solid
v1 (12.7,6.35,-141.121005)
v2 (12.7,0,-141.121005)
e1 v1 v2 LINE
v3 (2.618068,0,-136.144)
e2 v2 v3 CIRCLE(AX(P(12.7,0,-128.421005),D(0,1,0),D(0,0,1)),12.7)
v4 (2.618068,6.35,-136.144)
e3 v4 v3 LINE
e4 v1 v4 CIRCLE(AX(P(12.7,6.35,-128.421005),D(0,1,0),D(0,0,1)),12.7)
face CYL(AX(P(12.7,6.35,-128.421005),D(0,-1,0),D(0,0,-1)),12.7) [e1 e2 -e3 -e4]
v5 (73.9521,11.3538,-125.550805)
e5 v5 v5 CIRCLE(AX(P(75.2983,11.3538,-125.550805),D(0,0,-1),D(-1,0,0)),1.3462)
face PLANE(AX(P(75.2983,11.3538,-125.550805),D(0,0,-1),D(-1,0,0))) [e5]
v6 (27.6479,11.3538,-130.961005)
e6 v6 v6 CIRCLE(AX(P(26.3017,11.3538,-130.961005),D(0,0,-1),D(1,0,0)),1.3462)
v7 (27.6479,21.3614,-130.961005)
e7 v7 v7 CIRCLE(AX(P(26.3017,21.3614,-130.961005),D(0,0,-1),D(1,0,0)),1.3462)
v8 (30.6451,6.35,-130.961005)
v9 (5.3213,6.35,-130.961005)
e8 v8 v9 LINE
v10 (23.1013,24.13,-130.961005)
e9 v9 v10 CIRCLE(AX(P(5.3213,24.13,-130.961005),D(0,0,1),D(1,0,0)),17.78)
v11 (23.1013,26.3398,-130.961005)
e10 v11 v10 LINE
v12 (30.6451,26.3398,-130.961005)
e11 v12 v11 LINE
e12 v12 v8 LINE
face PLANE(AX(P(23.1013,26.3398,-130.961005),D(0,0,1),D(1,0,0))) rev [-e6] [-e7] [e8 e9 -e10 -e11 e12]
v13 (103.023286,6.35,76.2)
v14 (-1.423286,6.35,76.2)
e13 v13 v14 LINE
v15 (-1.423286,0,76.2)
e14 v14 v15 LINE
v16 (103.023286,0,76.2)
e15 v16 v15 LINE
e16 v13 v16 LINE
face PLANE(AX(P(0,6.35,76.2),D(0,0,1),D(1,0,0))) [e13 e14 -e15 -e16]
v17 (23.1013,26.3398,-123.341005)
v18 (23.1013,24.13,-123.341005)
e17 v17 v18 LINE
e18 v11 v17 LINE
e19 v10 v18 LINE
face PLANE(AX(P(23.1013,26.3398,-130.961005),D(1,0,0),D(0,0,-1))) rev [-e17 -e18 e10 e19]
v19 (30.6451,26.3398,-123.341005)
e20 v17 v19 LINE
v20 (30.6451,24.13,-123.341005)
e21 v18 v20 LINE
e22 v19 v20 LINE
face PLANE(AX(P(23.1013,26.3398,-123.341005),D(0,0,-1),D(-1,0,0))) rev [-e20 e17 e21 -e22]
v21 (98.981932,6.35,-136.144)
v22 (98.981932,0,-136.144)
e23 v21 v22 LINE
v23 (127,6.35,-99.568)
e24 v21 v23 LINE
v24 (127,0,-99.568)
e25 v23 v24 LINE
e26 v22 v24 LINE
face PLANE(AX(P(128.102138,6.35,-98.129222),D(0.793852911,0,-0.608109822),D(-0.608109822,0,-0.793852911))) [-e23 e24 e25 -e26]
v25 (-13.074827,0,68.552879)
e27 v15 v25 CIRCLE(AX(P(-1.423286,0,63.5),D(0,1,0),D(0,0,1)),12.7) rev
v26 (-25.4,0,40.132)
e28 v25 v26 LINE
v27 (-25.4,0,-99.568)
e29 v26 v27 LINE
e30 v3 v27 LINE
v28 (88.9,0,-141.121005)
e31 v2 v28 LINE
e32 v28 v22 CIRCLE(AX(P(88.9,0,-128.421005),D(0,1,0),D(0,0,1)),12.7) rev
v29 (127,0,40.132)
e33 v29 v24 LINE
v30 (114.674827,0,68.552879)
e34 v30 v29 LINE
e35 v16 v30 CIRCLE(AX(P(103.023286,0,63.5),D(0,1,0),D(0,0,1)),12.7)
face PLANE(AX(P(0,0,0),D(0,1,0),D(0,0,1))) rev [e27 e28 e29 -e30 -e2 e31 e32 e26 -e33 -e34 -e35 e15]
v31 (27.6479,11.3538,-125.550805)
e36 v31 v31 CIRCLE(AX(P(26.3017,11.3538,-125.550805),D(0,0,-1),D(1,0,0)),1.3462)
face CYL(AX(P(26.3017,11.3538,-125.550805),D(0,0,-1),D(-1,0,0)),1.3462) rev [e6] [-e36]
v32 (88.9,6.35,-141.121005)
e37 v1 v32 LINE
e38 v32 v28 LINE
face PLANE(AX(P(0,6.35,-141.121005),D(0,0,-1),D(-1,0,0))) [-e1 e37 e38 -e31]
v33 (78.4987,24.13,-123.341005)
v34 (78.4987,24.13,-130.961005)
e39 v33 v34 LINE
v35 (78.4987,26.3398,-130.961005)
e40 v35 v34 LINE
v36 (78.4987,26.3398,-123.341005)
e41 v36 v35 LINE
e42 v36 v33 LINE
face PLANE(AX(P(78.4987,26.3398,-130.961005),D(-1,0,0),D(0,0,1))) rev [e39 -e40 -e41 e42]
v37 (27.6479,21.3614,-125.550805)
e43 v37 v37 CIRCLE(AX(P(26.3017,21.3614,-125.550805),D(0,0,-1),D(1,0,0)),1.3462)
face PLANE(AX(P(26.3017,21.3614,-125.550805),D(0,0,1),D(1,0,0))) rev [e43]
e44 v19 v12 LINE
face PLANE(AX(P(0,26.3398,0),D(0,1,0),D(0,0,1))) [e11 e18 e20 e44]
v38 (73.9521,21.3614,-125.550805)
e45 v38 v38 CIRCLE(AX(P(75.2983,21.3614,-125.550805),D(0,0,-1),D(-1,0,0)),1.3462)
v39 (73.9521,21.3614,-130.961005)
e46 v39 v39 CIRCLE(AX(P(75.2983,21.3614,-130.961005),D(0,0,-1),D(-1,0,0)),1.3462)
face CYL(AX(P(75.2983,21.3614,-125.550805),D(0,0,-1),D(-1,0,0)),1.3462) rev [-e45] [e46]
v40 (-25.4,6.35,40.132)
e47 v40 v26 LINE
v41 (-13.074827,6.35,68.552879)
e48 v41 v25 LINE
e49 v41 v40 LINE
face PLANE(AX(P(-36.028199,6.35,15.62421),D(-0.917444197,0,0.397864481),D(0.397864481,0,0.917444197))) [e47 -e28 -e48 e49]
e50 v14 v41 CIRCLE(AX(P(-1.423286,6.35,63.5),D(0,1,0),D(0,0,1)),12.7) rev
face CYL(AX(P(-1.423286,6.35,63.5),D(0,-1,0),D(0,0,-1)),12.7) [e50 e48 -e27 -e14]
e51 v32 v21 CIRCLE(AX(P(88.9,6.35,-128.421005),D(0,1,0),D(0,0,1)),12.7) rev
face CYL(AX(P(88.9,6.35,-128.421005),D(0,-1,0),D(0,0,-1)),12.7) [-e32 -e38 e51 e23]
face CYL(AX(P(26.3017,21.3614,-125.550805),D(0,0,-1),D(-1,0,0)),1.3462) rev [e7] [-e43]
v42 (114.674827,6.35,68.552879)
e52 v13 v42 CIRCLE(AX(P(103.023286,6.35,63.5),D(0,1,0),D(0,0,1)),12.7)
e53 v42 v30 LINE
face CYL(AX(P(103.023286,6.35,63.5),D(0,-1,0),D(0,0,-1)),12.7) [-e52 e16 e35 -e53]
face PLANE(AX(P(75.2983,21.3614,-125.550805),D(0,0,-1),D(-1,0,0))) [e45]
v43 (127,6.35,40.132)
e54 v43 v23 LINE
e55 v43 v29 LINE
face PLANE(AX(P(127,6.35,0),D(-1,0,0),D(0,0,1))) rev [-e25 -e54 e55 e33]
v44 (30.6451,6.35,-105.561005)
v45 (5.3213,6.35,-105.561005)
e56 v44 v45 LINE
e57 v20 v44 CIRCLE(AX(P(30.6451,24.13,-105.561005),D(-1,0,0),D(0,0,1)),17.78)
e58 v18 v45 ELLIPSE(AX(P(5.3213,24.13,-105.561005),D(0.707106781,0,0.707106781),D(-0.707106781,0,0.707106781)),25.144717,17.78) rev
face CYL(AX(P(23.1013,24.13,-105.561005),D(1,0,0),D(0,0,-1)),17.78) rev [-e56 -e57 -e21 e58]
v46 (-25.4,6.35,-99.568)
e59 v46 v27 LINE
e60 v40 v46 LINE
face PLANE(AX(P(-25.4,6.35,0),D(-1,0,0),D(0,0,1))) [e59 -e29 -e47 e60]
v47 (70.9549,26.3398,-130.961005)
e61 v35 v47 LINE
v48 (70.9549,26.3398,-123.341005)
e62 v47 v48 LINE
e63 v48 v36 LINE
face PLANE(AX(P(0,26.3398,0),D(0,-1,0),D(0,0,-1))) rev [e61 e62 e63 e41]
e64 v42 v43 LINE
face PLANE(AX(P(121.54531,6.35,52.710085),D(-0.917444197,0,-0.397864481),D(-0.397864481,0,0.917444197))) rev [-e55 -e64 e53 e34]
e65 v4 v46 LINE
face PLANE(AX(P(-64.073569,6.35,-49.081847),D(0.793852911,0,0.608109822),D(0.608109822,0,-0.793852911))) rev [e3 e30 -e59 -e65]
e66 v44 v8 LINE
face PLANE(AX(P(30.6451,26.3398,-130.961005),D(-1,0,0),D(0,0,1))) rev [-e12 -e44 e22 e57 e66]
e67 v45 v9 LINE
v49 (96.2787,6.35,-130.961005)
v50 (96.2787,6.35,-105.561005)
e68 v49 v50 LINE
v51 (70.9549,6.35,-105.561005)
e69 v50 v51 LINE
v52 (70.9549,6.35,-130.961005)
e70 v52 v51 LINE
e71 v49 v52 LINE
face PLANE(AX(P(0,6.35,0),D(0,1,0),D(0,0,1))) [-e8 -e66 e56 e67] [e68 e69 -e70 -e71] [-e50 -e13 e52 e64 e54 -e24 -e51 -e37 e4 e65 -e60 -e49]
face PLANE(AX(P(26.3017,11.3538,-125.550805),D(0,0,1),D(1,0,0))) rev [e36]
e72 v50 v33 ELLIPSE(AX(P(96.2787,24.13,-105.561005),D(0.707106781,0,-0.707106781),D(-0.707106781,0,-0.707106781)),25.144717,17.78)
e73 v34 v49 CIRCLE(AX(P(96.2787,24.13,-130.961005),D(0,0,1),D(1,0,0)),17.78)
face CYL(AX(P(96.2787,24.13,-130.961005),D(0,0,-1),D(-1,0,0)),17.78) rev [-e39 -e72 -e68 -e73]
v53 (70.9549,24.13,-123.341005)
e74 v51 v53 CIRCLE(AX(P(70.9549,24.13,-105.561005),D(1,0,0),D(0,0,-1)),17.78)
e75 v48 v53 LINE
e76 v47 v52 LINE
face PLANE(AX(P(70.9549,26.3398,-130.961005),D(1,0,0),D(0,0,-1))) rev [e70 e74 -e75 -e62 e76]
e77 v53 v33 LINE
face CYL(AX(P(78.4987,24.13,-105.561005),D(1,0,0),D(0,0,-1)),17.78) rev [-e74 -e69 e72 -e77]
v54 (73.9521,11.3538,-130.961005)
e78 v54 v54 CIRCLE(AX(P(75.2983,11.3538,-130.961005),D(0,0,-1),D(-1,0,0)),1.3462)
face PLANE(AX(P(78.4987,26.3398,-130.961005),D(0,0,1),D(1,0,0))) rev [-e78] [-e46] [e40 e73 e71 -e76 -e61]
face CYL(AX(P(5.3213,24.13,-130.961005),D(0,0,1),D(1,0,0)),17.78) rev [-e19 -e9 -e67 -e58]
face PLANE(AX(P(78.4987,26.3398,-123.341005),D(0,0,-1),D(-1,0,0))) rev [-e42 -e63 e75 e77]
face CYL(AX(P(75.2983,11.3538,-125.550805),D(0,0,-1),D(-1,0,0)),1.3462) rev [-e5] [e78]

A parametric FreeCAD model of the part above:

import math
import FreeCAD as App
import Part
import Sketcher
from FreeCAD import Vector
Q = App.Units.Quantity


def edges_at(feature, points):
    """Names of the edges that pass closest to the given points."""
    edges = feature.Shape.Edges
    near = lambda p: min(range(len(edges)), key=lambda i: edges[i].distToShape(Part.Vertex(*p))[0])
    return sorted({f"Edge{near(p) + 1}" for p in points})


def add_polygon(sketch, points):
    """Adds a closed chain of lines whose ends are joined by coincident constraints."""
    first, n = sketch.GeometryCount, len(points)
    for a, b in zip(points, points[1:] + points[:1]):
        sketch.addGeometry(Part.LineSegment(App.Vector(*a, 0), App.Vector(*b, 0)), False)
    for i in range(n):
        sketch.addConstraint(Sketcher.Constraint("Coincident", first + i, 2, first + (i + 1) % n, 1))

doc = App.newDocument("Part")
body = doc.addObject("PartDesign::Body", "Body")

sketch1 = body.newObject("Sketcher::SketchObject", "Sketch")
sketch1.AttachmentSupport = (doc.getObject("XZ_Plane"), [""])
sketch1.MapMode = "FlatFace"
sketch1.addGeometry(Part.LineSegment(Vector(89, -141, 0), Vector(13, -141, 0)), False)
sketch1.addGeometry(Part.ArcOfCircle(Part.Circle(Vector(13, -128, 0), Vector(0, 0, 1), 13), math.radians(-143), math.radians(-90)), False)
sketch1.addGeometry(Part.LineSegment(Vector(3, -136, 0), Vector(-25, -100, 0)), False)
sketch1.addGeometry(Part.LineSegment(Vector(-25, -100, 0), Vector(-25, 40, 0)), False)
sketch1.addGeometry(Part.LineSegment(Vector(-25, 40, 0), Vector(-13, 69, 0)), False)
sketch1.addGeometry(Part.ArcOfCircle(Part.Circle(Vector(-1, 64, 0), Vector(0, 0, 1), 13), math.radians(90), math.radians(157)), False)
sketch1.addGeometry(Part.LineSegment(Vector(-1, 76, 0), Vector(103, 76, 0)), False)
sketch1.addGeometry(Part.ArcOfCircle(Part.Circle(Vector(103, 64, 0), Vector(0, 0, 1), 13), math.radians(23), math.radians(90)), False)
sketch1.addGeometry(Part.LineSegment(Vector(115, 69, 0), Vector(127, 40, 0)), False)
sketch1.addGeometry(Part.LineSegment(Vector(127, 40, 0), Vector(127, -100, 0)), False)
sketch1.addGeometry(Part.LineSegment(Vector(127, -100, 0), Vector(99, -136, 0)), False)
sketch1.addGeometry(Part.ArcOfCircle(Part.Circle(Vector(89, -128, 0), Vector(0, 0, 1), 13), math.radians(-90), math.radians(-37)), False)
sketch1.addConstraint(Sketcher.Constraint("Tangent", 0, 2, 1, 2))
sketch1.addConstraint(Sketcher.Constraint("Tangent", 1, 1, 2, 1))
sketch1.addConstraint(Sketcher.Constraint("Coincident", 2, 2, 3, 1))
sketch1.addConstraint(Sketcher.Constraint("Coincident", 3, 2, 4, 1))
sketch1.addConstraint(Sketcher.Constraint("Tangent", 4, 2, 5, 2))
sketch1.addConstraint(Sketcher.Constraint("Tangent", 5, 1, 6, 1))
sketch1.addConstraint(Sketcher.Constraint("Tangent", 6, 2, 7, 2))
sketch1.addConstraint(Sketcher.Constraint("Tangent", 7, 1, 8, 1))
sketch1.addConstraint(Sketcher.Constraint("Coincident", 8, 2, 9, 1))
sketch1.addConstraint(Sketcher.Constraint("Coincident", 9, 2, 10, 1))
sketch1.addConstraint(Sketcher.Constraint("Tangent", 10, 2, 11, 2))
sketch1.addConstraint(Sketcher.Constraint("Tangent", 11, 1, 0, 1))
sketch1.addConstraint(Sketcher.Constraint("Horizontal", 0))
sketch1.addConstraint(Sketcher.Constraint("Vertical", 3))
sketch1.addConstraint(Sketcher.Constraint("Horizontal", 6))
sketch1.addConstraint(Sketcher.Constraint("Vertical", 9))
sketch1.addConstraint(Sketcher.Constraint("Equal", 1, 5))
sketch1.addConstraint(Sketcher.Constraint("Equal", 5, 7))
sketch1.addConstraint(Sketcher.Constraint("Equal", 7, 11))
sketch1.addConstraint(Sketcher.Constraint("Horizontal", 4, 2, 7, 1))
sketch1.addConstraint(Sketcher.Constraint("Horizontal", 3, 2, 8, 2))
sketch1.addConstraint(Sketcher.Constraint("Horizontal", 2, 2, 9, 2))
sketch1.addConstraint(Sketcher.Constraint("Horizontal", 1, 1, 10, 2))
sketch1.addConstraint(Sketcher.Constraint("Radius", 1, Q("0.5 in")))
sketch1.addConstraint(Sketcher.Constraint("DistanceX", 0, 2, 0, 1, Q("3 in")))
sketch1.addConstraint(Sketcher.Constraint("DistanceY", 3, 1, 3, 2, Q("5.5 in")))
sketch1.addConstraint(Sketcher.Constraint("DistanceX", 2, 2, -1, 1, Q("1 in")))
sketch1.addConstraint(Sketcher.Constraint("DistanceY", -1, 1, 5, 1, Q("3 in")))
sketch1.addConstraint(Sketcher.Constraint("DistanceX", -1, 1, 8, 2, Q("5 in")))
sketch1.addConstraint(Sketcher.Constraint("DistanceY", 1, 1, -1, 1, Q("5.36 in")))
sketch1.addConstraint(Sketcher.Constraint("DistanceY", 2, 2, -1, 1, Q("3.92 in")))
sketch1.addConstraint(Sketcher.Constraint("DistanceX", 6, 1, 6, 2, Q("104.446572 mm")))
pad1 = body.newObject("PartDesign::Pad", "Pad")
pad1.Profile = sketch1
pad1.Length = Q("0.25 in")
pad1.Reversed = True

sketch2 = body.newObject("Sketcher::SketchObject", "Sketch001")
sketch2.AttachmentSupport = (doc.getObject("XZ_Plane"), [""])
sketch2.MapMode = "FlatFace"
sketch2.AttachmentOffset = App.Placement(Vector(0, 0, -0.25 * 25.4), App.Rotation())
add_polygon(sketch2, [(71, -131), (71, -123), (78, -123), (78, -131)])
add_polygon(sketch2, [(23, -131), (23, -123), (31, -123), (31, -131)])
sketch2.addConstraint(Sketcher.Constraint("Vertical", 0))
sketch2.addConstraint(Sketcher.Constraint("Horizontal", 1))
sketch2.addConstraint(Sketcher.Constraint("Vertical", 2))
sketch2.addConstraint(Sketcher.Constraint("Horizontal", 3))
sketch2.addConstraint(Sketcher.Constraint("Vertical", 4))
sketch2.addConstraint(Sketcher.Constraint("Horizontal", 5))
sketch2.addConstraint(Sketcher.Constraint("Vertical", 6))
sketch2.addConstraint(Sketcher.Constraint("Horizontal", 7))
sketch2.addConstraint(Sketcher.Constraint("Horizontal", 1, 2, 4, 2))
sketch2.addConstraint(Sketcher.Constraint("Horizontal", 3, 2, 6, 2))
sketch2.addConstraint(Sketcher.Constraint("Equal", 3, 5))
sketch2.addConstraint(Sketcher.Constraint("DistanceY", 0, 1, 0, 2, Q("0.3 in")))
sketch2.addConstraint(Sketcher.Constraint("DistanceX", 1, 1, 1, 2, Q("0.297 in")))
sketch2.addConstraint(Sketcher.Constraint("DistanceX", 4, 2, 0, 2, Q("1.884 in")))
sketch2.addConstraint(Sketcher.Constraint("DistanceX", -1, 1, 0, 2, Q("2.7935 in")))
sketch2.addConstraint(Sketcher.Constraint("DistanceY", 0, 2, -1, 1, Q("123.341005 mm")))
pad2 = body.newObject("PartDesign::Pad", "Pad001")
pad2.Profile = sketch2
pad2.Length = Q("0.787 in")
pad2.Reversed = True
doc.recompute()

fillet = body.newObject("PartDesign::Fillet", "Fillet")
fillet.Base = (pad2, edges_at(pad2, [
    (23.101, 6.35, -127.151),
    (26.873, 6.35, -123.341),
    (78.499, 6.35, -127.151),
    (74.727, 6.35, -123.341),
]))
fillet.Radius = Q("0.7 in")

sketch3 = body.newObject("Sketcher::SketchObject", "Sketch002")
sketch3.AttachmentSupport = (doc.getObject("XY_Plane"), [""])
sketch3.MapMode = "FlatFace"
sketch3.AttachmentOffset = App.Placement(Vector(0, 0, -130.961005), App.Rotation())
sketch3.addGeometry(Part.Circle(Vector(75.3, 11.4, 0), Vector(0, 0, 1), 1.3), False)
sketch3.addGeometry(Part.Circle(Vector(75.3, 21.4, 0), Vector(0, 0, 1), 1.3), False)
sketch3.addGeometry(Part.Circle(Vector(26.3, 11.4, 0), Vector(0, 0, 1), 1.3), False)
sketch3.addGeometry(Part.Circle(Vector(26.3, 21.4, 0), Vector(0, 0, 1), 1.3), False)
sketch3.addConstraint(Sketcher.Constraint("Equal", 0, 1))
sketch3.addConstraint(Sketcher.Constraint("Equal", 1, 2))
sketch3.addConstraint(Sketcher.Constraint("Equal", 2, 3))
sketch3.addConstraint(Sketcher.Constraint("Horizontal", 0, 3, 2, 3))
sketch3.addConstraint(Sketcher.Constraint("Horizontal", 1, 3, 3, 3))
sketch3.addConstraint(Sketcher.Constraint("Vertical", 0, 3, 1, 3))
sketch3.addConstraint(Sketcher.Constraint("Vertical", 2, 3, 3, 3))
sketch3.addConstraint(Sketcher.Constraint("Diameter", 0, Q("0.106 in")))
sketch3.addConstraint(Sketcher.Constraint("DistanceY", -1, 1, 0, 3, Q("0.447 in")))
sketch3.addConstraint(Sketcher.Constraint("DistanceY", -1, 1, 1, 3, Q("0.841 in")))
sketch3.addConstraint(Sketcher.Constraint("DistanceX", 2, 3, 0, 3, Q("1.929 in")))
sketch3.addConstraint(Sketcher.Constraint("DistanceX", -1, 1, 0, 3, Q("2.9645 in")))
pocket1 = body.newObject("PartDesign::Pocket", "Pocket")
pocket1.Profile = sketch3
pocket1.Length = Q("0.213 in")
pocket1.Reversed = True

doc.recompute()
